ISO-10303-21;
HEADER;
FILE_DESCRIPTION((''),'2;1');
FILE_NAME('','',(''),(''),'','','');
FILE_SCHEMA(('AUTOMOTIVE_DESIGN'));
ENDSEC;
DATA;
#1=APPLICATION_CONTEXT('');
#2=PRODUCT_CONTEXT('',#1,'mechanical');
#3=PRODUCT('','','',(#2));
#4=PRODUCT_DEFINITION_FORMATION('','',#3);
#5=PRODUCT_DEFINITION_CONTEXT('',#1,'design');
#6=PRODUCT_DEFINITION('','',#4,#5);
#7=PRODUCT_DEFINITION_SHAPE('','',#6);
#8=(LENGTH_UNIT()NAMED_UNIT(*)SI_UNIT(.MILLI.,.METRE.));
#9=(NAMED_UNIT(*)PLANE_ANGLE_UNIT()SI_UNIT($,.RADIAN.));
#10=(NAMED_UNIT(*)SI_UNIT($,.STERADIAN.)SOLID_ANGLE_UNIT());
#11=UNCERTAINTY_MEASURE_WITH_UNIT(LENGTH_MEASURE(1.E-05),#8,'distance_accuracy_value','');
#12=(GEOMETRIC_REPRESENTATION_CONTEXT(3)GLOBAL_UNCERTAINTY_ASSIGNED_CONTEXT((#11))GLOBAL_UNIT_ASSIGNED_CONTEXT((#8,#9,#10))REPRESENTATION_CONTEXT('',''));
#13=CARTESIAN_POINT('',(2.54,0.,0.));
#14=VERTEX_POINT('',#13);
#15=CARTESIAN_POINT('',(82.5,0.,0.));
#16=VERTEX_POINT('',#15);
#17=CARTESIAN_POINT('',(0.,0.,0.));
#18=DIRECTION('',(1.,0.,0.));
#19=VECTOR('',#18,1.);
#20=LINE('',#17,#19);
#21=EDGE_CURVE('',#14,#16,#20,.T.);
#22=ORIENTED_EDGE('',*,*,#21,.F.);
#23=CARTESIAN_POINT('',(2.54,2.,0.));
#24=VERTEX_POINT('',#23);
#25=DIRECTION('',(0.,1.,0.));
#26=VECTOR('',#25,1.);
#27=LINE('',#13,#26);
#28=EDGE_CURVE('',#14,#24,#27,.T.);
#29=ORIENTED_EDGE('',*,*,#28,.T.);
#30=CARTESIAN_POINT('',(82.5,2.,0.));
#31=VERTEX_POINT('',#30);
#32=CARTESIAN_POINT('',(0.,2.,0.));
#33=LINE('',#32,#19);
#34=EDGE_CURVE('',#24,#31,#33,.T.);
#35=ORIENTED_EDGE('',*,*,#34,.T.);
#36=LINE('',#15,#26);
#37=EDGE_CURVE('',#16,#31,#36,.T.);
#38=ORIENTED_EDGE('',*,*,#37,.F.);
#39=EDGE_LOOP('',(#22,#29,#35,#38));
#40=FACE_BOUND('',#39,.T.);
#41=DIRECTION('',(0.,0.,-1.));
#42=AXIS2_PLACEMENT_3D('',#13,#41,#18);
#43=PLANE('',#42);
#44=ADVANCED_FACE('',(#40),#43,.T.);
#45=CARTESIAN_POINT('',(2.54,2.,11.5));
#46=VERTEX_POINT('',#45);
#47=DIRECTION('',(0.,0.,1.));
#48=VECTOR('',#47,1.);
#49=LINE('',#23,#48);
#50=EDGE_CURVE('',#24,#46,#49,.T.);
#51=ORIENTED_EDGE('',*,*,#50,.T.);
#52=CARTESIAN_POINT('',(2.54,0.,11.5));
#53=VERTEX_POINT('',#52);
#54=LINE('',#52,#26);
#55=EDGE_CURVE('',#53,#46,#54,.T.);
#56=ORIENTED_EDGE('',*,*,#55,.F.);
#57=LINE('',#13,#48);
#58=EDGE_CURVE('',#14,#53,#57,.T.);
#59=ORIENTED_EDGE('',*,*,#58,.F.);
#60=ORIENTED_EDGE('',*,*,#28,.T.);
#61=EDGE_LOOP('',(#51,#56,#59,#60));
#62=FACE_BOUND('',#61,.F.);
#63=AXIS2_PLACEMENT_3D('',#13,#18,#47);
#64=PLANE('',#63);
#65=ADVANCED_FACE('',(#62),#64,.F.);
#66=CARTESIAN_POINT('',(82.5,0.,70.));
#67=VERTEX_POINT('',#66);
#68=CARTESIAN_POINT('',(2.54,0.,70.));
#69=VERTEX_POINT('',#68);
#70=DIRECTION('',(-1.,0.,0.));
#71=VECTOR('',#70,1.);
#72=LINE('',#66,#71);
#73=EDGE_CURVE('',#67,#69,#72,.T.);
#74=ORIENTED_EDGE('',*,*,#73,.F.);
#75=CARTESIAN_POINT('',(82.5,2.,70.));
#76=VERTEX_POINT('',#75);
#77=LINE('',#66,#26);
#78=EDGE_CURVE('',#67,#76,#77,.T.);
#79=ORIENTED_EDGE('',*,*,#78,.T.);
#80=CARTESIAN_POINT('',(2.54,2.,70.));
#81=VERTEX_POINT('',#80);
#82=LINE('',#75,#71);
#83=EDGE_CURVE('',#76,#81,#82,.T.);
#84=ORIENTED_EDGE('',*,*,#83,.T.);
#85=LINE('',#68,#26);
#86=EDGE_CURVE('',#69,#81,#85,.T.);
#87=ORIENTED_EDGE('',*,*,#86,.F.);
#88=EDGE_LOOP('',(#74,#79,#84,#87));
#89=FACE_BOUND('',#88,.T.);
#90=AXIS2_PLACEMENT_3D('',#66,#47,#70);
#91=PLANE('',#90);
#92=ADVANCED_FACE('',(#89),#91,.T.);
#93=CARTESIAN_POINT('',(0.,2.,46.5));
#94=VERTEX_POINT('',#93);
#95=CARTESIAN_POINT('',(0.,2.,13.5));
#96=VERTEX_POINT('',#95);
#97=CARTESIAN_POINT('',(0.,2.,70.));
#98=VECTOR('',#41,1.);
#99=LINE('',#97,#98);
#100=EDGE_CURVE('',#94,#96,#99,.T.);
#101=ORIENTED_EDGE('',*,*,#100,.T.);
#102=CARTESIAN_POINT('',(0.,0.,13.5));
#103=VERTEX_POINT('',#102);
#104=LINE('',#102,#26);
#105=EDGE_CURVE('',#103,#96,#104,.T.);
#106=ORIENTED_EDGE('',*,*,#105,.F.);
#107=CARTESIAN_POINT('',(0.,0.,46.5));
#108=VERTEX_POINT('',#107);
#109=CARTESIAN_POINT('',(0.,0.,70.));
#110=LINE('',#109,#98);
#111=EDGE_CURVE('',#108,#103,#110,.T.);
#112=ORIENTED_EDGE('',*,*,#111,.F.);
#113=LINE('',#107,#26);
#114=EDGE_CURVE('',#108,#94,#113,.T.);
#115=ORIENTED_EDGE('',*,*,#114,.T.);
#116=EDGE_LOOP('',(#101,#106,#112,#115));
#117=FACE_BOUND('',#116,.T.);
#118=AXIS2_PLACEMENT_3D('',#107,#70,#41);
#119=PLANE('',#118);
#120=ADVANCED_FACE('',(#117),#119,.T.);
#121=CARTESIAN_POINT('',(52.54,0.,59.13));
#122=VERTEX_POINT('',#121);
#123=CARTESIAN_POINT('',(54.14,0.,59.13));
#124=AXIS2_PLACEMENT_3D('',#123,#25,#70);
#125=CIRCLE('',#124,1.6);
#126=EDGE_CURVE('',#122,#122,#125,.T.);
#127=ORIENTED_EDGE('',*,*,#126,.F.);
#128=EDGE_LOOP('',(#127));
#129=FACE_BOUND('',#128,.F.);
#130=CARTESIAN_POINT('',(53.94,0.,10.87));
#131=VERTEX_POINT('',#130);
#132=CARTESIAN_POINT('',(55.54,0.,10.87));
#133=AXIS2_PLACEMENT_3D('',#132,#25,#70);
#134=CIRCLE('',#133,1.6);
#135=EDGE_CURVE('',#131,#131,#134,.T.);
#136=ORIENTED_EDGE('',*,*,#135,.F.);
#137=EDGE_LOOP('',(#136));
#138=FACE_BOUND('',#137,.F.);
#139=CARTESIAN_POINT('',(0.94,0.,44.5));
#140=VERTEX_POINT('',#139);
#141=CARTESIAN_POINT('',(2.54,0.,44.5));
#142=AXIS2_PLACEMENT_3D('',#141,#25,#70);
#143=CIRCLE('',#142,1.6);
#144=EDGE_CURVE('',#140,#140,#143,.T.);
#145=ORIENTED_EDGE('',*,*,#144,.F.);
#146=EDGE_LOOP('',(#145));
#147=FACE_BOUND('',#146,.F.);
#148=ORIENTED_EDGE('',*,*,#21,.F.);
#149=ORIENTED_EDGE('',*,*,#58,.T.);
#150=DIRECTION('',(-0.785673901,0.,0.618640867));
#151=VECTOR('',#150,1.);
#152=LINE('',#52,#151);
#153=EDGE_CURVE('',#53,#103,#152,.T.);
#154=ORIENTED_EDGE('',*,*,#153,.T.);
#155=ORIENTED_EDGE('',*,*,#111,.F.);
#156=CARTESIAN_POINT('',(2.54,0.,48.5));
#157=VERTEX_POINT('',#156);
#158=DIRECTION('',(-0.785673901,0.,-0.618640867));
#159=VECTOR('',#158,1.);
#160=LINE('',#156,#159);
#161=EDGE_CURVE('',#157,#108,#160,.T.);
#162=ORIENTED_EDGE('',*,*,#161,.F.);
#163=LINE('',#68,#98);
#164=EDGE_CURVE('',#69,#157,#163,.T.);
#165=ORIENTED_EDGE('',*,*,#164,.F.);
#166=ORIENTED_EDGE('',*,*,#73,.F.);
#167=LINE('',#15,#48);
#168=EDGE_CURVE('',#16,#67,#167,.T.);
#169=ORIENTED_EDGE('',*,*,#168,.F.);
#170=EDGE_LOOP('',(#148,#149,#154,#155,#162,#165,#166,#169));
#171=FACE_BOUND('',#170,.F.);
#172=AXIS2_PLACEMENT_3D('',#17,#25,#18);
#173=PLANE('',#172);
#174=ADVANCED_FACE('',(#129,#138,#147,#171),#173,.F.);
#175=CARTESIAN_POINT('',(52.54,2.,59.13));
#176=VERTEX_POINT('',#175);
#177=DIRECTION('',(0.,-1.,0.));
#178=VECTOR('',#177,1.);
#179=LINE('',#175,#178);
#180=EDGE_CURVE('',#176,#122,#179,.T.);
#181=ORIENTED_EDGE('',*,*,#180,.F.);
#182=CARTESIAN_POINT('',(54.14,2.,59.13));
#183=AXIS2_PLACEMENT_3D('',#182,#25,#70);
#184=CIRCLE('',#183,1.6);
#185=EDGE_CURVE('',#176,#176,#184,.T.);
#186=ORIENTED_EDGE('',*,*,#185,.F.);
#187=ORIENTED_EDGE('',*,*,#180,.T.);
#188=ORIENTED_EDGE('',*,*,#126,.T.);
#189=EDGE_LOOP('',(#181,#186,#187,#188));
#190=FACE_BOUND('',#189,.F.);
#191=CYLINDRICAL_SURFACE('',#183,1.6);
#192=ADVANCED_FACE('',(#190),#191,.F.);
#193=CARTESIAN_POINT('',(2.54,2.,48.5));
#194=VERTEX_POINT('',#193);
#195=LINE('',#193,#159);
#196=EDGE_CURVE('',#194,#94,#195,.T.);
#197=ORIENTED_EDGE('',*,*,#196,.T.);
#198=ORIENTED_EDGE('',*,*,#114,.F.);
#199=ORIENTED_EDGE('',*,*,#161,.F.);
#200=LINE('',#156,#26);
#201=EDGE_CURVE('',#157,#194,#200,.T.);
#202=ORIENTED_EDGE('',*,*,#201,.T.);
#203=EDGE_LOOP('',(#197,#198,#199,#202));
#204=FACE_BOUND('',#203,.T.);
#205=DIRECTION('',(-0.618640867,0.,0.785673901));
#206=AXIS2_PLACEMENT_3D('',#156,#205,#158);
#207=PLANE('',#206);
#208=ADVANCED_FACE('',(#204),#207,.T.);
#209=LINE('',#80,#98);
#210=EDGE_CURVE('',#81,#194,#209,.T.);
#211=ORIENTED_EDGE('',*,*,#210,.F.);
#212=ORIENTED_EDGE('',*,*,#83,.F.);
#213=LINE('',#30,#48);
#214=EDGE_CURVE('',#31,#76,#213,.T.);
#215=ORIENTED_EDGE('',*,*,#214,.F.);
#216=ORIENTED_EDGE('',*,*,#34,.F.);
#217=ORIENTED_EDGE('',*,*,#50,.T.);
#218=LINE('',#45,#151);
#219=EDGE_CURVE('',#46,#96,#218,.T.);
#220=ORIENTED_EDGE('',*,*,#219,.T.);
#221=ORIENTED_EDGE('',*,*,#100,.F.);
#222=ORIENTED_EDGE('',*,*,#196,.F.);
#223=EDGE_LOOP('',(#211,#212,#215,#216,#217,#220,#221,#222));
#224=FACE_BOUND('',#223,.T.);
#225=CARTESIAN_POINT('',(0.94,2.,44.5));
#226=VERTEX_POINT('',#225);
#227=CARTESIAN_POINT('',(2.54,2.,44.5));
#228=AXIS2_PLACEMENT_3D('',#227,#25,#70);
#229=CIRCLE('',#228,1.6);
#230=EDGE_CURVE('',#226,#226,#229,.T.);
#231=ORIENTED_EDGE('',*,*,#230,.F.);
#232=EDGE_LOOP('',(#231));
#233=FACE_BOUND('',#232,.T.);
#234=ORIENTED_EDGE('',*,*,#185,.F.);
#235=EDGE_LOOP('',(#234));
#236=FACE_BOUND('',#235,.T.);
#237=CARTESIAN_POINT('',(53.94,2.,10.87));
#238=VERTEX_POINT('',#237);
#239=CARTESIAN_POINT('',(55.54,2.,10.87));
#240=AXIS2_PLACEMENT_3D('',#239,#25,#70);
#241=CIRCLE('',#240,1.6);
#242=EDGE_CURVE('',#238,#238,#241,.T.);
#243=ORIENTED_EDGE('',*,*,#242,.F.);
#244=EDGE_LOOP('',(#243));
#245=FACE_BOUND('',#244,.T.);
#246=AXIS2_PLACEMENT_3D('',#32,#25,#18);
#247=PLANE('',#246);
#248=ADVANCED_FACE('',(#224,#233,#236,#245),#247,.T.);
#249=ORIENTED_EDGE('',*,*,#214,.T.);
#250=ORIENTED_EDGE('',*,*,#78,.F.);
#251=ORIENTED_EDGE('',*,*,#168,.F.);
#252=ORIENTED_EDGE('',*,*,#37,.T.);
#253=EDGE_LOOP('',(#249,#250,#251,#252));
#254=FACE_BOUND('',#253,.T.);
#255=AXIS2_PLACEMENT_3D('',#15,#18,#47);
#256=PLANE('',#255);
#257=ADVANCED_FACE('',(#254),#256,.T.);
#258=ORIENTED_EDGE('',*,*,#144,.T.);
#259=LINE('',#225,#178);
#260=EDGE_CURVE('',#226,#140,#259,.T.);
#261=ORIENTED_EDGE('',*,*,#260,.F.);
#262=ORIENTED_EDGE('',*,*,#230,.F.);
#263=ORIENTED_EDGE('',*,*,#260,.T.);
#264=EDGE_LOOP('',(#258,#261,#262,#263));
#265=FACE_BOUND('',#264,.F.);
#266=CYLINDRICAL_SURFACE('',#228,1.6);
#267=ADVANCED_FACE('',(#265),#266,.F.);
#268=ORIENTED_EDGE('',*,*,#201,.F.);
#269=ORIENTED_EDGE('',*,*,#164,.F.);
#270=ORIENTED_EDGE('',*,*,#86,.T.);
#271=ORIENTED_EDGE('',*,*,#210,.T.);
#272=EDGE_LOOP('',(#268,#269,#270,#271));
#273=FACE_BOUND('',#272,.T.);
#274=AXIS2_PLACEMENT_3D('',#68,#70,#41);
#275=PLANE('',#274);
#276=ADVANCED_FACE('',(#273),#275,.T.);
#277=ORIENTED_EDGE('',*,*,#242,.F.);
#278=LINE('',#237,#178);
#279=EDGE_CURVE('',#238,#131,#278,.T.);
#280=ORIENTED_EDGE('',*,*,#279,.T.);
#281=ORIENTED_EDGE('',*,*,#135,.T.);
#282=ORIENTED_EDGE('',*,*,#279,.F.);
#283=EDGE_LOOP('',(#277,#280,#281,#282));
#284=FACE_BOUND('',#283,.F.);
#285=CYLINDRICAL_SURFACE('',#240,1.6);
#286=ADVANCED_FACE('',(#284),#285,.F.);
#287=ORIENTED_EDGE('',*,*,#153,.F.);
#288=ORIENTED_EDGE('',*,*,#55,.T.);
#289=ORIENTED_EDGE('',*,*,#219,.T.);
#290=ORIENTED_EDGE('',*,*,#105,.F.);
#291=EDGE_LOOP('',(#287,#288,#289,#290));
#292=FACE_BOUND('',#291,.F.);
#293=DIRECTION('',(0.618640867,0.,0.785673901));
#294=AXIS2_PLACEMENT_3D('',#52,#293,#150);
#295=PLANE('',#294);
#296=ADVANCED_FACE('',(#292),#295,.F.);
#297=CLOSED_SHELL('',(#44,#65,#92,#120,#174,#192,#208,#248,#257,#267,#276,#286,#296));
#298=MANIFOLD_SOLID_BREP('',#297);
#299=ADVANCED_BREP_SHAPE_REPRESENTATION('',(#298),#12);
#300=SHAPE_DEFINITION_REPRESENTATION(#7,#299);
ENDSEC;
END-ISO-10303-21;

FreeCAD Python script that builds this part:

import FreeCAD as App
import Part
import Sketcher

V = App.Vector

doc = App.newDocument("Part")
params = doc.addObject("Spreadsheet::Sheet", "Params")
for row, (alias, value) in enumerate([
    ("sketch1_height", "33 mm"),
    ("sketch1_height2", "70 mm"),
    ("sketch1_height3", "11.5 mm"),
    ("sketch1_height4", "21.5 mm"),
    ("pad1_length", "2 mm"),
    ("sketch2_diameter", "3.2 mm"),
    ("pocket1_length", "2 mm"),
], start=1):
    params.set(f"A{row}", alias)
    params.set(f"B{row}", "=" + value)
    params.setAlias(f"B{row}", alias)

body = doc.addObject("PartDesign::Body", "Body")

# Sketch on XZ plane
sketch1 = body.newObject("Sketcher::SketchObject", "Sketch")
sketch1.AttachmentSupport = (doc.getObject("XZ_Plane"), [""])
sketch1.MapMode = "FlatFace"
sketch1.addGeometry(Part.LineSegment(V(82.5, 0, 0), V(2.54, 0, 0)), False)
sketch1.addGeometry(Part.LineSegment(V(2.54, 0, 0), V(2.54, 11.5, 0)), False)
sketch1.addGeometry(Part.LineSegment(V(2.54, 11.5, 0), V(0, 13.5, 0)), False)
sketch1.addGeometry(Part.LineSegment(V(0, 13.5, 0), V(0, 46.5, 0)), False)
sketch1.addGeometry(Part.LineSegment(V(0, 46.5, 0), V(2.54, 48.5, 0)), False)
sketch1.addGeometry(Part.LineSegment(V(2.54, 48.5, 0), V(2.54, 70, 0)), False)
sketch1.addGeometry(Part.LineSegment(V(2.54, 70, 0), V(82.5, 70, 0)), False)
sketch1.addGeometry(Part.LineSegment(V(82.5, 70, 0), V(82.5, 0, 0)), False)
sketch1.addConstraint(Sketcher.Constraint("Coincident", 0, 2, 1, 1))
sketch1.addConstraint(Sketcher.Constraint("Coincident", 1, 2, 2, 1))
sketch1.addConstraint(Sketcher.Constraint("Coincident", 2, 2, 3, 1))
sketch1.addConstraint(Sketcher.Constraint("Coincident", 3, 2, 4, 1))
sketch1.addConstraint(Sketcher.Constraint("Coincident", 4, 2, 5, 1))
sketch1.addConstraint(Sketcher.Constraint("Coincident", 5, 2, 6, 1))
sketch1.addConstraint(Sketcher.Constraint("Coincident", 6, 2, 7, 1))
sketch1.addConstraint(Sketcher.Constraint("Coincident", 7, 2, 0, 1))
sketch1.addConstraint(Sketcher.Constraint("Horizontal", 0))
sketch1.addConstraint(Sketcher.Constraint("Vertical", 1))
sketch1.addConstraint(Sketcher.Constraint("Vertical", 3))
sketch1.addConstraint(Sketcher.Constraint("Vertical", 5))
sketch1.addConstraint(Sketcher.Constraint("Horizontal", 6))
sketch1.addConstraint(Sketcher.Constraint("Vertical", 7))
sketch1.addConstraint(Sketcher.Constraint("PointOnObject", 0, 2, -1))
sketch1.addConstraint(Sketcher.Constraint("PointOnObject", 2, 2, -2))
sketch1.addConstraint(Sketcher.Constraint("Vertical", 1, 2, 4, 2))
sketch1.addConstraint(Sketcher.Constraint("Equal", 2, 4))
sketch1.addConstraint(Sketcher.Constraint("DistanceY", 3, 1, 3, 2, 33.0))
sketch1.addConstraint(Sketcher.Constraint("DistanceY", 7, 2, 7, 1, 70.0))
sketch1.addConstraint(Sketcher.Constraint("DistanceY", 1, 1, 1, 2, 11.5))
sketch1.addConstraint(Sketcher.Constraint("DistanceY", 5, 1, 5, 2, 21.5))
sketch1.addConstraint(Sketcher.Constraint("DistanceX", -1, 1, 6, 2, 82.5))
sketch1.addConstraint(Sketcher.Constraint("DistanceX", -1, 1, 0, 2, 2.54))
sketch1.setExpression("Constraints[18]", "Params.sketch1_height")
sketch1.setExpression("Constraints[19]", "Params.sketch1_height2")
sketch1.setExpression("Constraints[20]", "Params.sketch1_height3")
sketch1.setExpression("Constraints[21]", "Params.sketch1_height4")
pad1 = body.newObject("PartDesign::Pad", "Pad")
pad1.Profile = sketch1
pad1.setExpression("Length", "Params.pad1_length")
pad1.Reversed = True

# Sketch on XZ plane
sketch2 = body.newObject("Sketcher::SketchObject", "Sketch001")
sketch2.AttachmentSupport = (doc.getObject("XZ_Plane"), [""])
sketch2.MapMode = "FlatFace"
sketch2.AttachmentOffset = App.Placement(V(0, 0, -2), App.Rotation())
sketch2.addGeometry(Part.Circle(V(2.54, 44.5, 0), V(0, 0, 1), 1.6), False)
sketch2.addGeometry(Part.Circle(V(54.14, 59.13, 0), V(0, 0, 1), 1.6), False)
sketch2.addGeometry(Part.Circle(V(55.54, 10.87, 0), V(0, 0, 1), 1.6), False)
sketch2.addConstraint(Sketcher.Constraint("Equal", 0, 1))
sketch2.addConstraint(Sketcher.Constraint("Equal", 1, 2))
sketch2.addConstraint(Sketcher.Constraint("Diameter", 0, 3.2))
sketch2.addConstraint(Sketcher.Constraint("DistanceX", 0, 3, 2, 3, 53.0))
sketch2.addConstraint(Sketcher.Constraint("DistanceX", 0, 3, 1, 3, 51.6))
sketch2.addConstraint(Sketcher.Constraint("DistanceX", -1, 1, 0, 3, 2.54))
sketch2.addConstraint(Sketcher.Constraint("DistanceY", -1, 1, 2, 3, 10.87))
sketch2.addConstraint(Sketcher.Constraint("DistanceY", 2, 3, 1, 3, 48.26))
sketch2.addConstraint(Sketcher.Constraint("DistanceY", -1, 1, 0, 3, 44.5))
sketch2.setExpression("Constraints[2]", "Params.sketch2_diameter")
pocket1 = body.newObject("PartDesign::Pocket", "Pocket")
pocket1.Profile = sketch2
pocket1.setExpression("Length", "Params.pocket1_length")
pocket1.Reversed = True

doc.recompute()
